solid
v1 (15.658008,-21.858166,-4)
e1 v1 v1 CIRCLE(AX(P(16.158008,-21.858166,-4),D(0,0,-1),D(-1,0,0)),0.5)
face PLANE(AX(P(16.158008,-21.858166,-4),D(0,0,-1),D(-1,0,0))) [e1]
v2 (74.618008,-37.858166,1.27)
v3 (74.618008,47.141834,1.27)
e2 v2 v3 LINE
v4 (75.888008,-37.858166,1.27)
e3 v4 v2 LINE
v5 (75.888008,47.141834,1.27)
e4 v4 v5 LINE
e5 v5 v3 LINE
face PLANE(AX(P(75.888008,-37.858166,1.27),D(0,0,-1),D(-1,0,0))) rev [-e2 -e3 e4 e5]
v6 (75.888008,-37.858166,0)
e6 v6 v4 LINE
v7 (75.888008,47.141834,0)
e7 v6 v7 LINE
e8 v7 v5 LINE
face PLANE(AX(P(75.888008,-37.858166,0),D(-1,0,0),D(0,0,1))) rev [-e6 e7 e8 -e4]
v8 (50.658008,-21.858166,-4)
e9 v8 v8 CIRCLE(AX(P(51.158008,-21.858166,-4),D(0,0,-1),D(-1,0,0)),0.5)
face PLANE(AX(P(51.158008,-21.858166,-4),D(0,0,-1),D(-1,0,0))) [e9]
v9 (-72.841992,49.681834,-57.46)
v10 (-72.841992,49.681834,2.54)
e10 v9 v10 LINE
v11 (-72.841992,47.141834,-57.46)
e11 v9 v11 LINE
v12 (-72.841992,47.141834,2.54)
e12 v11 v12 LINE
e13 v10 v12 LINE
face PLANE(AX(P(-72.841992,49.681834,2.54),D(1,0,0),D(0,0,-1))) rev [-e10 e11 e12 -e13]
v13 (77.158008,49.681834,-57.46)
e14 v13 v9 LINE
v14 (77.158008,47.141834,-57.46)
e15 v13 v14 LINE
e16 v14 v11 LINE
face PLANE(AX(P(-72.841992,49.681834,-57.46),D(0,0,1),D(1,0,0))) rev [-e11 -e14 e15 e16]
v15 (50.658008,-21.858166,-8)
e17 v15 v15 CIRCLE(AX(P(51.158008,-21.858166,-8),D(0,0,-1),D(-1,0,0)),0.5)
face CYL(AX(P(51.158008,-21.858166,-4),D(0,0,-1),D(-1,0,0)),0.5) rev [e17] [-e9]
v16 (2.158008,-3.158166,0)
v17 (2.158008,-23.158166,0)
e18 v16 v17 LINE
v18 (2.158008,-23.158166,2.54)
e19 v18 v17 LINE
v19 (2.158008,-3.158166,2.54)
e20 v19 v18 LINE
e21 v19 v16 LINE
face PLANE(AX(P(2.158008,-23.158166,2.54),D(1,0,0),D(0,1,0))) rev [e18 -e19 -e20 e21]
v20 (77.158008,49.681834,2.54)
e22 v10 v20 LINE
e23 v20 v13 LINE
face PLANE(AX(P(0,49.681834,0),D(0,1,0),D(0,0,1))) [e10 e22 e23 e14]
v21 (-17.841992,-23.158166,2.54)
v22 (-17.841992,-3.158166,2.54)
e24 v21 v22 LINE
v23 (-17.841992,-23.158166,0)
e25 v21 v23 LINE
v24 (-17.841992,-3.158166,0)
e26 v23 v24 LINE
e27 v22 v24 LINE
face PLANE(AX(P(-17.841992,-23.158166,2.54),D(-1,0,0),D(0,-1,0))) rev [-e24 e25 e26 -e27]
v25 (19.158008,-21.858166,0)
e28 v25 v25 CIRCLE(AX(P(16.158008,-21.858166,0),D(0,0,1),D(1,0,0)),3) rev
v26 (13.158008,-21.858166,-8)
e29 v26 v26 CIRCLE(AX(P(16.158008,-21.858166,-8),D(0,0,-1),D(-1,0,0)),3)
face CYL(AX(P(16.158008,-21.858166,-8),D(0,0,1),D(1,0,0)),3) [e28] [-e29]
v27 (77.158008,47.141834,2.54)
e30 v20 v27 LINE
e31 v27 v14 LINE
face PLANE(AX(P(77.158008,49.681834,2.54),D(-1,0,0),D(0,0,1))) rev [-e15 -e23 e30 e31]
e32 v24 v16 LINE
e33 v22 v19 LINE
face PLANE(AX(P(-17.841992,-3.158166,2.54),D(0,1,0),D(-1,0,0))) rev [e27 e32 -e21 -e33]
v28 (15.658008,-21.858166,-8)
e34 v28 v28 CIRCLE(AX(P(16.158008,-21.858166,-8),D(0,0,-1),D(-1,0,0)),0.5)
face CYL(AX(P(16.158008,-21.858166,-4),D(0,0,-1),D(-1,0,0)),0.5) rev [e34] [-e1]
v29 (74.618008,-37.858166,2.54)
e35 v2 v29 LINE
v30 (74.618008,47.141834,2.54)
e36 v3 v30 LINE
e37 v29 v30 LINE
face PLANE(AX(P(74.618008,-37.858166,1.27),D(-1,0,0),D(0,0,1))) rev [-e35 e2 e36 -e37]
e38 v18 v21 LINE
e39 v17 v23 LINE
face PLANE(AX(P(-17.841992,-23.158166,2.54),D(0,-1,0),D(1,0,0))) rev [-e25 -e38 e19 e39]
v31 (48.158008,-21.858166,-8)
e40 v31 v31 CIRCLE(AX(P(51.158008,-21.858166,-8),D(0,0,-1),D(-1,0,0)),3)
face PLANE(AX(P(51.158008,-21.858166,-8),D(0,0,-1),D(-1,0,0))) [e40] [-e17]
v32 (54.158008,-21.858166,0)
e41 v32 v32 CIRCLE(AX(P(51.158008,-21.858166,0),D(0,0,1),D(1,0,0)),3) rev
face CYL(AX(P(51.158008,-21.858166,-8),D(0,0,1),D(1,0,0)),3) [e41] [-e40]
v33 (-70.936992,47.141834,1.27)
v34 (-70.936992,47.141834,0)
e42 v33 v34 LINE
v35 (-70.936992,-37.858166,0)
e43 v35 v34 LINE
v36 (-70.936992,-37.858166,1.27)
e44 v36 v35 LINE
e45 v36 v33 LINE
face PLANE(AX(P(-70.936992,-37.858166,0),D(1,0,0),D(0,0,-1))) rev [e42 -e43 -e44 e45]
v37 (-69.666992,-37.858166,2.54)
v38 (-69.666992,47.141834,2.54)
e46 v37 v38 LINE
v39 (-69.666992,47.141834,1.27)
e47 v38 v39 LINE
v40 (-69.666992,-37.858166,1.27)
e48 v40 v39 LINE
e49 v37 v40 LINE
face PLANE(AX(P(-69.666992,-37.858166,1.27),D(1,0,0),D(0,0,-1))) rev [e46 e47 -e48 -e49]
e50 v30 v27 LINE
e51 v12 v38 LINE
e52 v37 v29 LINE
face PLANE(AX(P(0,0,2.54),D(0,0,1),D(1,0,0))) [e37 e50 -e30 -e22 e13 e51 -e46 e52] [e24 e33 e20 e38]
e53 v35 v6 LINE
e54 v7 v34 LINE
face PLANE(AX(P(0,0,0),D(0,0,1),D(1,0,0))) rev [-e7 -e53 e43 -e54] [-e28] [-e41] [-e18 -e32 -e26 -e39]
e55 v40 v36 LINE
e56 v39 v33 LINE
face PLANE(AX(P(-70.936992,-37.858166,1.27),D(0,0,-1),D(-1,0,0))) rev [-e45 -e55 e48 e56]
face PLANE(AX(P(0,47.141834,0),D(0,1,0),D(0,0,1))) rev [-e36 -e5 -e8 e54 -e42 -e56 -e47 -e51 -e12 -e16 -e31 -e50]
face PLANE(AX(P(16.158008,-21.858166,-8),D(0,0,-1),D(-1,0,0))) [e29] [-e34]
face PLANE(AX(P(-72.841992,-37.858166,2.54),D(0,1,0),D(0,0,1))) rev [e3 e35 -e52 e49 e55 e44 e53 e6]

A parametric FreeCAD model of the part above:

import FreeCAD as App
import Part
import Sketcher

doc = App.newDocument("Part")
params = doc.addObject("Spreadsheet::Sheet", "Params")
for row, (alias, value) in enumerate([
    ("sketch1_width", "150 mm"),
    ("sketch1_height", "85 mm"),
    ("pad1_length", "2.54 mm"),
    ("sketch2_width", "20 mm"),
    ("pocket1_length", "2.54 mm"),
    ("sketch3_diameter", "6 mm"),
    ("pad2_length", "8 mm"),
    ("sketch4_diameter", "1 mm"),
    ("pocket2_length", "4 mm"),
    ("sketch5_width", "1.27 mm"),
    ("pocket3_length", "85 mm"),
    ("sketch6_width", "150 mm"),
    ("sketch6_height", "60 mm"),
    ("pad3_length", "2.54 mm"),
], start=1):
    params.set(f"A{row}", alias)
    params.set(f"B{row}", "=" + value)
    params.setAlias(f"B{row}", alias)

body = doc.addObject("PartDesign::Body", "Body")

# Sketch on XY plane
sketch1 = body.newObject("Sketcher::SketchObject", "Sketch")
sketch1.AttachmentSupport = (doc.getObject("XY_Plane"), [""])
sketch1.MapMode = "FlatFace"
sketch1.addGeometry(Part.LineSegment(App.Vector(-73, 47, 0), App.Vector(-73, -38, 0)), False)
sketch1.addGeometry(Part.LineSegment(App.Vector(-73, -38, 0), App.Vector(77, -38, 0)), False)
sketch1.addGeometry(Part.LineSegment(App.Vector(77, -38, 0), App.Vector(77, 47, 0)), False)
sketch1.addGeometry(Part.LineSegment(App.Vector(77, 47, 0), App.Vector(-73, 47, 0)), False)
sketch1.addConstraint(Sketcher.Constraint("Coincident", 0, 2, 1, 1))
sketch1.addConstraint(Sketcher.Constraint("Coincident", 1, 2, 2, 1))
sketch1.addConstraint(Sketcher.Constraint("Coincident", 2, 2, 3, 1))
sketch1.addConstraint(Sketcher.Constraint("Coincident", 3, 2, 0, 1))
sketch1.addConstraint(Sketcher.Constraint("Vertical", 0))
sketch1.addConstraint(Sketcher.Constraint("Horizontal", 1))
sketch1.addConstraint(Sketcher.Constraint("Vertical", 2))
sketch1.addConstraint(Sketcher.Constraint("Horizontal", 3))
sketch1.addConstraint(Sketcher.Constraint("DistanceX", 1, 1, 1, 2, 150.0))
sketch1.addConstraint(Sketcher.Constraint("DistanceY", 0, 2, 0, 1, 85.0))
sketch1.addConstraint(Sketcher.Constraint("DistanceX", 0, 2, -1, 1, 72.841992))
sketch1.addConstraint(Sketcher.Constraint("DistanceY", 0, 2, -1, 1, 37.858166))
sketch1.setExpression("Constraints[8]", "Params.sketch1_width")
sketch1.setExpression("Constraints[9]", "Params.sketch1_height")
pad1 = body.newObject("PartDesign::Pad", "Pad")
pad1.Profile = sketch1
pad1.setExpression("Length", "Params.pad1_length")

# Sketch on XY plane
sketch2 = body.newObject("Sketcher::SketchObject", "Sketch001")
sketch2.AttachmentSupport = (doc.getObject("XY_Plane"), [""])
sketch2.MapMode = "FlatFace"
sketch2.addGeometry(Part.LineSegment(App.Vector(2, -3, 0), App.Vector(2, -23, 0)), False)
sketch2.addGeometry(Part.LineSegment(App.Vector(2, -23, 0), App.Vector(-18, -23, 0)), False)
sketch2.addGeometry(Part.LineSegment(App.Vector(-18, -23, 0), App.Vector(-18, -3, 0)), False)
sketch2.addGeometry(Part.LineSegment(App.Vector(-18, -3, 0), App.Vector(2, -3, 0)), False)
sketch2.addConstraint(Sketcher.Constraint("Coincident", 0, 2, 1, 1))
sketch2.addConstraint(Sketcher.Constraint("Coincident", 1, 2, 2, 1))
sketch2.addConstraint(Sketcher.Constraint("Coincident", 2, 2, 3, 1))
sketch2.addConstraint(Sketcher.Constraint("Coincident", 3, 2, 0, 1))
sketch2.addConstraint(Sketcher.Constraint("Vertical", 0))
sketch2.addConstraint(Sketcher.Constraint("Horizontal", 1))
sketch2.addConstraint(Sketcher.Constraint("Vertical", 2))
sketch2.addConstraint(Sketcher.Constraint("Horizontal", 3))
sketch2.addConstraint(Sketcher.Constraint("Equal", 3, 0))
sketch2.addConstraint(Sketcher.Constraint("DistanceX", 1, 2, 1, 1, 20.0))
sketch2.addConstraint(Sketcher.Constraint("DistanceX", -1, 1, 0, 2, 2.158008))
sketch2.addConstraint(Sketcher.Constraint("DistanceY", 0, 2, -1, 1, 23.158166))
sketch2.setExpression("Constraints[9]", "Params.sketch2_width")
pocket1 = body.newObject("PartDesign::Pocket", "Pocket")
pocket1.Profile = sketch2
pocket1.setExpression("Length", "Params.pocket1_length")
pocket1.Reversed = True

# Sketch on XY plane
sketch3 = body.newObject("Sketcher::SketchObject", "Sketch002")
sketch3.AttachmentSupport = (doc.getObject("XY_Plane"), [""])
sketch3.MapMode = "FlatFace"
sketch3.addGeometry(Part.Circle(App.Vector(51.2, -21.9, 0), App.Vector(0, 0, 1), 3), False)
sketch3.addGeometry(Part.Circle(App.Vector(16.2, -21.9, 0), App.Vector(0, 0, 1), 3), False)
sketch3.addConstraint(Sketcher.Constraint("Equal", 0, 1))
sketch3.addConstraint(Sketcher.Constraint("Horizontal", 0, 3, 1, 3))
sketch3.addConstraint(Sketcher.Constraint("Diameter", 0, 6.0))
sketch3.addConstraint(Sketcher.Constraint("DistanceX", 1, 3, 0, 3, 35.0))
sketch3.addConstraint(Sketcher.Constraint("DistanceX", -1, 1, 0, 3, 51.158008))
sketch3.addConstraint(Sketcher.Constraint("DistanceY", 0, 3, -1, 1, 21.858166))
sketch3.setExpression("Constraints[2]", "Params.sketch3_diameter")
pad2 = body.newObject("PartDesign::Pad", "Pad001")
pad2.Profile = sketch3
pad2.setExpression("Length", "Params.pad2_length")
pad2.Reversed = True

# Sketch on XY plane
sketch4 = body.newObject("Sketcher::SketchObject", "Sketch003")
sketch4.AttachmentSupport = (doc.getObject("XY_Plane"), [""])
sketch4.MapMode = "FlatFace"
sketch4.AttachmentOffset = App.Placement(App.Vector(0, 0, -8), App.Rotation())
sketch4.addGeometry(Part.Circle(App.Vector(51.2, -21.9, 0), App.Vector(0, 0, 1), 0.5), False)
sketch4.addGeometry(Part.Circle(App.Vector(16.2, -21.9, 0), App.Vector(0, 0, 1), 0.5), False)
sketch4.addConstraint(Sketcher.Constraint("Equal", 0, 1))
sketch4.addConstraint(Sketcher.Constraint("Horizontal", 0, 3, 1, 3))
sketch4.addConstraint(Sketcher.Constraint("Diameter", 0, 1.0))
sketch4.addConstraint(Sketcher.Constraint("DistanceX", 1, 3, 0, 3, 35.0))
sketch4.addConstraint(Sketcher.Constraint("DistanceX", -1, 1, 0, 3, 51.158008))
sketch4.addConstraint(Sketcher.Constraint("DistanceY", 0, 3, -1, 1, 21.858166))
sketch4.setExpression("Constraints[2]", "Params.sketch4_diameter")
pocket2 = body.newObject("PartDesign::Pocket", "Pocket001")
pocket2.Profile = sketch4
pocket2.setExpression("Length", "Params.pocket2_length")
pocket2.Reversed = True

# Sketch on XZ plane
sketch5 = body.newObject("Sketcher::SketchObject", "Sketch004")
sketch5.AttachmentSupport = (doc.getObject("XZ_Plane"), [""])
sketch5.MapMode = "FlatFace"
sketch5.AttachmentOffset = App.Placement(App.Vector(0, 0, -47.141834), App.Rotation())
sketch5.addGeometry(Part.LineSegment(App.Vector(-69.7, 2.5, 0), App.Vector(-69.7, 1.3, 0)), False)
sketch5.addGeometry(Part.LineSegment(App.Vector(-69.7, 1.3, 0), App.Vector(-70.9, 1.3, 0)), False)
sketch5.addGeometry(Part.LineSegment(App.Vector(-70.9, 1.3, 0), App.Vector(-70.9, 0, 0)), False)
sketch5.addGeometry(Part.LineSegment(App.Vector(-70.9, 0, 0), App.Vector(-72.8, 0, 0)), False)
sketch5.addGeometry(Part.LineSegment(App.Vector(-72.8, 0, 0), App.Vector(-72.8, 2.5, 0)), False)
sketch5.addGeometry(Part.LineSegment(App.Vector(-72.8, 2.5, 0), App.Vector(-69.7, 2.5, 0)), False)
sketch5.addGeometry(Part.LineSegment(App.Vector(75.9, 0, 0), App.Vector(75.9, 1.3, 0)), False)
sketch5.addGeometry(Part.LineSegment(App.Vector(75.9, 1.3, 0), App.Vector(74.6, 1.3, 0)), False)
sketch5.addGeometry(Part.LineSegment(App.Vector(74.6, 1.3, 0), App.Vector(74.6, 2.5, 0)), False)
sketch5.addGeometry(Part.LineSegment(App.Vector(74.6, 2.5, 0), App.Vector(77.2, 2.5, 0)), False)
sketch5.addGeometry(Part.LineSegment(App.Vector(77.2, 2.5, 0), App.Vector(77.2, 0, 0)), False)
sketch5.addGeometry(Part.LineSegment(App.Vector(77.2, 0, 0), App.Vector(75.9, 0, 0)), False)
sketch5.addConstraint(Sketcher.Constraint("Coincident", 0, 2, 1, 1))
sketch5.addConstraint(Sketcher.Constraint("Coincident", 1, 2, 2, 1))
sketch5.addConstraint(Sketcher.Constraint("Coincident", 2, 2, 3, 1))
sketch5.addConstraint(Sketcher.Constraint("Coincident", 3, 2, 4, 1))
sketch5.addConstraint(Sketcher.Constraint("Coincident", 4, 2, 5, 1))
sketch5.addConstraint(Sketcher.Constraint("Coincident", 5, 2, 0, 1))
sketch5.addConstraint(Sketcher.Constraint("Coincident", 6, 2, 7, 1))
sketch5.addConstraint(Sketcher.Constraint("Coincident", 7, 2, 8, 1))
sketch5.addConstraint(Sketcher.Constraint("Coincident", 8, 2, 9, 1))
sketch5.addConstraint(Sketcher.Constraint("Coincident", 9, 2, 10, 1))
sketch5.addConstraint(Sketcher.Constraint("Coincident", 10, 2, 11, 1))
sketch5.addConstraint(Sketcher.Constraint("Coincident", 11, 2, 6, 1))
sketch5.addConstraint(Sketcher.Constraint("Vertical", 0))
sketch5.addConstraint(Sketcher.Constraint("Horizontal", 1))
sketch5.addConstraint(Sketcher.Constraint("Vertical", 2))
sketch5.addConstraint(Sketcher.Constraint("Horizontal", 3))
sketch5.addConstraint(Sketcher.Constraint("Vertical", 4))
sketch5.addConstraint(Sketcher.Constraint("Horizontal", 5))
sketch5.addConstraint(Sketcher.Constraint("Vertical", 6))
sketch5.addConstraint(Sketcher.Constraint("Horizontal", 7))
sketch5.addConstraint(Sketcher.Constraint("Vertical", 8))
sketch5.addConstraint(Sketcher.Constraint("Horizontal", 9))
sketch5.addConstraint(Sketcher.Constraint("Vertical", 10))
sketch5.addConstraint(Sketcher.Constraint("Horizontal", 11))
sketch5.addConstraint(Sketcher.Constraint("PointOnObject", 2, 2, -1))
sketch5.addConstraint(Sketcher.Constraint("PointOnObject", 10, 2, -1))
sketch5.addConstraint(Sketcher.Constraint("Horizontal", 1, 2, 6, 2))
sketch5.addConstraint(Sketcher.Constraint("Horizontal", 5, 2, 8, 2))
sketch5.addConstraint(Sketcher.Constraint("Equal", 1, 7))
sketch5.addConstraint(Sketcher.Constraint("Equal", 7, 11))
sketch5.addConstraint(Sketcher.Constraint("Equal", 11, 0))
sketch5.addConstraint(Sketcher.Constraint("Equal", 0, 2))
sketch5.addConstraint(Sketcher.Constraint("DistanceX", 1, 2, 1, 1, 1.27))
sketch5.addConstraint(Sketcher.Constraint("DistanceX", 3, 2, 3, 1, 1.905))
sketch5.addConstraint(Sketcher.Constraint("DistanceX", 3, 2, 6, 2, 148.73))
sketch5.addConstraint(Sketcher.Constraint("DistanceX", 0, 2, -1, 1, 69.666992))
sketch5.setExpression("Constraints[32]", "Params.sketch5_width")
pocket3 = body.newObject("PartDesign::Pocket", "Pocket002")
pocket3.Profile = sketch5
pocket3.setExpression("Length", "Params.pocket3_length")
pocket3.Reversed = True

# Sketch on XZ plane
sketch6 = body.newObject("Sketcher::SketchObject", "Sketch005")
sketch6.AttachmentSupport = (doc.getObject("XZ_Plane"), [""])
sketch6.MapMode = "FlatFace"
sketch6.AttachmentOffset = App.Placement(App.Vector(0, 0, -47.141834), App.Rotation())
sketch6.addGeometry(Part.LineSegment(App.Vector(-73, -57, 0), App.Vector(-73, 3, 0)), False)
sketch6.addGeometry(Part.LineSegment(App.Vector(-73, 3, 0), App.Vector(77, 3, 0)), False)
sketch6.addGeometry(Part.LineSegment(App.Vector(77, 3, 0), App.Vector(77, -57, 0)), False)
sketch6.addGeometry(Part.LineSegment(App.Vector(77, -57, 0), App.Vector(-73, -57, 0)), False)
sketch6.addConstraint(Sketcher.Constraint("Coincident", 0, 2, 1, 1))
sketch6.addConstraint(Sketcher.Constraint("Coincident", 1, 2, 2, 1))
sketch6.addConstraint(Sketcher.Constraint("Coincident", 2, 2, 3, 1))
sketch6.addConstraint(Sketcher.Constraint("Coincident", 3, 2, 0, 1))
sketch6.addConstraint(Sketcher.Constraint("Vertical", 0))
sketch6.addConstraint(Sketcher.Constraint("Horizontal", 1))
sketch6.addConstraint(Sketcher.Constraint("Vertical", 2))
sketch6.addConstraint(Sketcher.Constraint("Horizontal", 3))
sketch6.addConstraint(Sketcher.Constraint("DistanceX", 1, 1, 1, 2, 150.0))
sketch6.addConstraint(Sketcher.Constraint("DistanceY", 0, 1, 0, 2, 60.0))
sketch6.addConstraint(Sketcher.Constraint("DistanceY", -1, 1, 0, 2, 2.54))
sketch6.addConstraint(Sketcher.Constraint("DistanceX", 0, 2, -1, 1, 72.841992))
sketch6.setExpression("Constraints[8]", "Params.sketch6_width")
sketch6.setExpression("Constraints[9]", "Params.sketch6_height")
pad3 = body.newObject("PartDesign::Pad", "Pad002")
pad3.Profile = sketch6
pad3.setExpression("Length", "Params.pad3_length")
pad3.Reversed = True

doc.recompute()
